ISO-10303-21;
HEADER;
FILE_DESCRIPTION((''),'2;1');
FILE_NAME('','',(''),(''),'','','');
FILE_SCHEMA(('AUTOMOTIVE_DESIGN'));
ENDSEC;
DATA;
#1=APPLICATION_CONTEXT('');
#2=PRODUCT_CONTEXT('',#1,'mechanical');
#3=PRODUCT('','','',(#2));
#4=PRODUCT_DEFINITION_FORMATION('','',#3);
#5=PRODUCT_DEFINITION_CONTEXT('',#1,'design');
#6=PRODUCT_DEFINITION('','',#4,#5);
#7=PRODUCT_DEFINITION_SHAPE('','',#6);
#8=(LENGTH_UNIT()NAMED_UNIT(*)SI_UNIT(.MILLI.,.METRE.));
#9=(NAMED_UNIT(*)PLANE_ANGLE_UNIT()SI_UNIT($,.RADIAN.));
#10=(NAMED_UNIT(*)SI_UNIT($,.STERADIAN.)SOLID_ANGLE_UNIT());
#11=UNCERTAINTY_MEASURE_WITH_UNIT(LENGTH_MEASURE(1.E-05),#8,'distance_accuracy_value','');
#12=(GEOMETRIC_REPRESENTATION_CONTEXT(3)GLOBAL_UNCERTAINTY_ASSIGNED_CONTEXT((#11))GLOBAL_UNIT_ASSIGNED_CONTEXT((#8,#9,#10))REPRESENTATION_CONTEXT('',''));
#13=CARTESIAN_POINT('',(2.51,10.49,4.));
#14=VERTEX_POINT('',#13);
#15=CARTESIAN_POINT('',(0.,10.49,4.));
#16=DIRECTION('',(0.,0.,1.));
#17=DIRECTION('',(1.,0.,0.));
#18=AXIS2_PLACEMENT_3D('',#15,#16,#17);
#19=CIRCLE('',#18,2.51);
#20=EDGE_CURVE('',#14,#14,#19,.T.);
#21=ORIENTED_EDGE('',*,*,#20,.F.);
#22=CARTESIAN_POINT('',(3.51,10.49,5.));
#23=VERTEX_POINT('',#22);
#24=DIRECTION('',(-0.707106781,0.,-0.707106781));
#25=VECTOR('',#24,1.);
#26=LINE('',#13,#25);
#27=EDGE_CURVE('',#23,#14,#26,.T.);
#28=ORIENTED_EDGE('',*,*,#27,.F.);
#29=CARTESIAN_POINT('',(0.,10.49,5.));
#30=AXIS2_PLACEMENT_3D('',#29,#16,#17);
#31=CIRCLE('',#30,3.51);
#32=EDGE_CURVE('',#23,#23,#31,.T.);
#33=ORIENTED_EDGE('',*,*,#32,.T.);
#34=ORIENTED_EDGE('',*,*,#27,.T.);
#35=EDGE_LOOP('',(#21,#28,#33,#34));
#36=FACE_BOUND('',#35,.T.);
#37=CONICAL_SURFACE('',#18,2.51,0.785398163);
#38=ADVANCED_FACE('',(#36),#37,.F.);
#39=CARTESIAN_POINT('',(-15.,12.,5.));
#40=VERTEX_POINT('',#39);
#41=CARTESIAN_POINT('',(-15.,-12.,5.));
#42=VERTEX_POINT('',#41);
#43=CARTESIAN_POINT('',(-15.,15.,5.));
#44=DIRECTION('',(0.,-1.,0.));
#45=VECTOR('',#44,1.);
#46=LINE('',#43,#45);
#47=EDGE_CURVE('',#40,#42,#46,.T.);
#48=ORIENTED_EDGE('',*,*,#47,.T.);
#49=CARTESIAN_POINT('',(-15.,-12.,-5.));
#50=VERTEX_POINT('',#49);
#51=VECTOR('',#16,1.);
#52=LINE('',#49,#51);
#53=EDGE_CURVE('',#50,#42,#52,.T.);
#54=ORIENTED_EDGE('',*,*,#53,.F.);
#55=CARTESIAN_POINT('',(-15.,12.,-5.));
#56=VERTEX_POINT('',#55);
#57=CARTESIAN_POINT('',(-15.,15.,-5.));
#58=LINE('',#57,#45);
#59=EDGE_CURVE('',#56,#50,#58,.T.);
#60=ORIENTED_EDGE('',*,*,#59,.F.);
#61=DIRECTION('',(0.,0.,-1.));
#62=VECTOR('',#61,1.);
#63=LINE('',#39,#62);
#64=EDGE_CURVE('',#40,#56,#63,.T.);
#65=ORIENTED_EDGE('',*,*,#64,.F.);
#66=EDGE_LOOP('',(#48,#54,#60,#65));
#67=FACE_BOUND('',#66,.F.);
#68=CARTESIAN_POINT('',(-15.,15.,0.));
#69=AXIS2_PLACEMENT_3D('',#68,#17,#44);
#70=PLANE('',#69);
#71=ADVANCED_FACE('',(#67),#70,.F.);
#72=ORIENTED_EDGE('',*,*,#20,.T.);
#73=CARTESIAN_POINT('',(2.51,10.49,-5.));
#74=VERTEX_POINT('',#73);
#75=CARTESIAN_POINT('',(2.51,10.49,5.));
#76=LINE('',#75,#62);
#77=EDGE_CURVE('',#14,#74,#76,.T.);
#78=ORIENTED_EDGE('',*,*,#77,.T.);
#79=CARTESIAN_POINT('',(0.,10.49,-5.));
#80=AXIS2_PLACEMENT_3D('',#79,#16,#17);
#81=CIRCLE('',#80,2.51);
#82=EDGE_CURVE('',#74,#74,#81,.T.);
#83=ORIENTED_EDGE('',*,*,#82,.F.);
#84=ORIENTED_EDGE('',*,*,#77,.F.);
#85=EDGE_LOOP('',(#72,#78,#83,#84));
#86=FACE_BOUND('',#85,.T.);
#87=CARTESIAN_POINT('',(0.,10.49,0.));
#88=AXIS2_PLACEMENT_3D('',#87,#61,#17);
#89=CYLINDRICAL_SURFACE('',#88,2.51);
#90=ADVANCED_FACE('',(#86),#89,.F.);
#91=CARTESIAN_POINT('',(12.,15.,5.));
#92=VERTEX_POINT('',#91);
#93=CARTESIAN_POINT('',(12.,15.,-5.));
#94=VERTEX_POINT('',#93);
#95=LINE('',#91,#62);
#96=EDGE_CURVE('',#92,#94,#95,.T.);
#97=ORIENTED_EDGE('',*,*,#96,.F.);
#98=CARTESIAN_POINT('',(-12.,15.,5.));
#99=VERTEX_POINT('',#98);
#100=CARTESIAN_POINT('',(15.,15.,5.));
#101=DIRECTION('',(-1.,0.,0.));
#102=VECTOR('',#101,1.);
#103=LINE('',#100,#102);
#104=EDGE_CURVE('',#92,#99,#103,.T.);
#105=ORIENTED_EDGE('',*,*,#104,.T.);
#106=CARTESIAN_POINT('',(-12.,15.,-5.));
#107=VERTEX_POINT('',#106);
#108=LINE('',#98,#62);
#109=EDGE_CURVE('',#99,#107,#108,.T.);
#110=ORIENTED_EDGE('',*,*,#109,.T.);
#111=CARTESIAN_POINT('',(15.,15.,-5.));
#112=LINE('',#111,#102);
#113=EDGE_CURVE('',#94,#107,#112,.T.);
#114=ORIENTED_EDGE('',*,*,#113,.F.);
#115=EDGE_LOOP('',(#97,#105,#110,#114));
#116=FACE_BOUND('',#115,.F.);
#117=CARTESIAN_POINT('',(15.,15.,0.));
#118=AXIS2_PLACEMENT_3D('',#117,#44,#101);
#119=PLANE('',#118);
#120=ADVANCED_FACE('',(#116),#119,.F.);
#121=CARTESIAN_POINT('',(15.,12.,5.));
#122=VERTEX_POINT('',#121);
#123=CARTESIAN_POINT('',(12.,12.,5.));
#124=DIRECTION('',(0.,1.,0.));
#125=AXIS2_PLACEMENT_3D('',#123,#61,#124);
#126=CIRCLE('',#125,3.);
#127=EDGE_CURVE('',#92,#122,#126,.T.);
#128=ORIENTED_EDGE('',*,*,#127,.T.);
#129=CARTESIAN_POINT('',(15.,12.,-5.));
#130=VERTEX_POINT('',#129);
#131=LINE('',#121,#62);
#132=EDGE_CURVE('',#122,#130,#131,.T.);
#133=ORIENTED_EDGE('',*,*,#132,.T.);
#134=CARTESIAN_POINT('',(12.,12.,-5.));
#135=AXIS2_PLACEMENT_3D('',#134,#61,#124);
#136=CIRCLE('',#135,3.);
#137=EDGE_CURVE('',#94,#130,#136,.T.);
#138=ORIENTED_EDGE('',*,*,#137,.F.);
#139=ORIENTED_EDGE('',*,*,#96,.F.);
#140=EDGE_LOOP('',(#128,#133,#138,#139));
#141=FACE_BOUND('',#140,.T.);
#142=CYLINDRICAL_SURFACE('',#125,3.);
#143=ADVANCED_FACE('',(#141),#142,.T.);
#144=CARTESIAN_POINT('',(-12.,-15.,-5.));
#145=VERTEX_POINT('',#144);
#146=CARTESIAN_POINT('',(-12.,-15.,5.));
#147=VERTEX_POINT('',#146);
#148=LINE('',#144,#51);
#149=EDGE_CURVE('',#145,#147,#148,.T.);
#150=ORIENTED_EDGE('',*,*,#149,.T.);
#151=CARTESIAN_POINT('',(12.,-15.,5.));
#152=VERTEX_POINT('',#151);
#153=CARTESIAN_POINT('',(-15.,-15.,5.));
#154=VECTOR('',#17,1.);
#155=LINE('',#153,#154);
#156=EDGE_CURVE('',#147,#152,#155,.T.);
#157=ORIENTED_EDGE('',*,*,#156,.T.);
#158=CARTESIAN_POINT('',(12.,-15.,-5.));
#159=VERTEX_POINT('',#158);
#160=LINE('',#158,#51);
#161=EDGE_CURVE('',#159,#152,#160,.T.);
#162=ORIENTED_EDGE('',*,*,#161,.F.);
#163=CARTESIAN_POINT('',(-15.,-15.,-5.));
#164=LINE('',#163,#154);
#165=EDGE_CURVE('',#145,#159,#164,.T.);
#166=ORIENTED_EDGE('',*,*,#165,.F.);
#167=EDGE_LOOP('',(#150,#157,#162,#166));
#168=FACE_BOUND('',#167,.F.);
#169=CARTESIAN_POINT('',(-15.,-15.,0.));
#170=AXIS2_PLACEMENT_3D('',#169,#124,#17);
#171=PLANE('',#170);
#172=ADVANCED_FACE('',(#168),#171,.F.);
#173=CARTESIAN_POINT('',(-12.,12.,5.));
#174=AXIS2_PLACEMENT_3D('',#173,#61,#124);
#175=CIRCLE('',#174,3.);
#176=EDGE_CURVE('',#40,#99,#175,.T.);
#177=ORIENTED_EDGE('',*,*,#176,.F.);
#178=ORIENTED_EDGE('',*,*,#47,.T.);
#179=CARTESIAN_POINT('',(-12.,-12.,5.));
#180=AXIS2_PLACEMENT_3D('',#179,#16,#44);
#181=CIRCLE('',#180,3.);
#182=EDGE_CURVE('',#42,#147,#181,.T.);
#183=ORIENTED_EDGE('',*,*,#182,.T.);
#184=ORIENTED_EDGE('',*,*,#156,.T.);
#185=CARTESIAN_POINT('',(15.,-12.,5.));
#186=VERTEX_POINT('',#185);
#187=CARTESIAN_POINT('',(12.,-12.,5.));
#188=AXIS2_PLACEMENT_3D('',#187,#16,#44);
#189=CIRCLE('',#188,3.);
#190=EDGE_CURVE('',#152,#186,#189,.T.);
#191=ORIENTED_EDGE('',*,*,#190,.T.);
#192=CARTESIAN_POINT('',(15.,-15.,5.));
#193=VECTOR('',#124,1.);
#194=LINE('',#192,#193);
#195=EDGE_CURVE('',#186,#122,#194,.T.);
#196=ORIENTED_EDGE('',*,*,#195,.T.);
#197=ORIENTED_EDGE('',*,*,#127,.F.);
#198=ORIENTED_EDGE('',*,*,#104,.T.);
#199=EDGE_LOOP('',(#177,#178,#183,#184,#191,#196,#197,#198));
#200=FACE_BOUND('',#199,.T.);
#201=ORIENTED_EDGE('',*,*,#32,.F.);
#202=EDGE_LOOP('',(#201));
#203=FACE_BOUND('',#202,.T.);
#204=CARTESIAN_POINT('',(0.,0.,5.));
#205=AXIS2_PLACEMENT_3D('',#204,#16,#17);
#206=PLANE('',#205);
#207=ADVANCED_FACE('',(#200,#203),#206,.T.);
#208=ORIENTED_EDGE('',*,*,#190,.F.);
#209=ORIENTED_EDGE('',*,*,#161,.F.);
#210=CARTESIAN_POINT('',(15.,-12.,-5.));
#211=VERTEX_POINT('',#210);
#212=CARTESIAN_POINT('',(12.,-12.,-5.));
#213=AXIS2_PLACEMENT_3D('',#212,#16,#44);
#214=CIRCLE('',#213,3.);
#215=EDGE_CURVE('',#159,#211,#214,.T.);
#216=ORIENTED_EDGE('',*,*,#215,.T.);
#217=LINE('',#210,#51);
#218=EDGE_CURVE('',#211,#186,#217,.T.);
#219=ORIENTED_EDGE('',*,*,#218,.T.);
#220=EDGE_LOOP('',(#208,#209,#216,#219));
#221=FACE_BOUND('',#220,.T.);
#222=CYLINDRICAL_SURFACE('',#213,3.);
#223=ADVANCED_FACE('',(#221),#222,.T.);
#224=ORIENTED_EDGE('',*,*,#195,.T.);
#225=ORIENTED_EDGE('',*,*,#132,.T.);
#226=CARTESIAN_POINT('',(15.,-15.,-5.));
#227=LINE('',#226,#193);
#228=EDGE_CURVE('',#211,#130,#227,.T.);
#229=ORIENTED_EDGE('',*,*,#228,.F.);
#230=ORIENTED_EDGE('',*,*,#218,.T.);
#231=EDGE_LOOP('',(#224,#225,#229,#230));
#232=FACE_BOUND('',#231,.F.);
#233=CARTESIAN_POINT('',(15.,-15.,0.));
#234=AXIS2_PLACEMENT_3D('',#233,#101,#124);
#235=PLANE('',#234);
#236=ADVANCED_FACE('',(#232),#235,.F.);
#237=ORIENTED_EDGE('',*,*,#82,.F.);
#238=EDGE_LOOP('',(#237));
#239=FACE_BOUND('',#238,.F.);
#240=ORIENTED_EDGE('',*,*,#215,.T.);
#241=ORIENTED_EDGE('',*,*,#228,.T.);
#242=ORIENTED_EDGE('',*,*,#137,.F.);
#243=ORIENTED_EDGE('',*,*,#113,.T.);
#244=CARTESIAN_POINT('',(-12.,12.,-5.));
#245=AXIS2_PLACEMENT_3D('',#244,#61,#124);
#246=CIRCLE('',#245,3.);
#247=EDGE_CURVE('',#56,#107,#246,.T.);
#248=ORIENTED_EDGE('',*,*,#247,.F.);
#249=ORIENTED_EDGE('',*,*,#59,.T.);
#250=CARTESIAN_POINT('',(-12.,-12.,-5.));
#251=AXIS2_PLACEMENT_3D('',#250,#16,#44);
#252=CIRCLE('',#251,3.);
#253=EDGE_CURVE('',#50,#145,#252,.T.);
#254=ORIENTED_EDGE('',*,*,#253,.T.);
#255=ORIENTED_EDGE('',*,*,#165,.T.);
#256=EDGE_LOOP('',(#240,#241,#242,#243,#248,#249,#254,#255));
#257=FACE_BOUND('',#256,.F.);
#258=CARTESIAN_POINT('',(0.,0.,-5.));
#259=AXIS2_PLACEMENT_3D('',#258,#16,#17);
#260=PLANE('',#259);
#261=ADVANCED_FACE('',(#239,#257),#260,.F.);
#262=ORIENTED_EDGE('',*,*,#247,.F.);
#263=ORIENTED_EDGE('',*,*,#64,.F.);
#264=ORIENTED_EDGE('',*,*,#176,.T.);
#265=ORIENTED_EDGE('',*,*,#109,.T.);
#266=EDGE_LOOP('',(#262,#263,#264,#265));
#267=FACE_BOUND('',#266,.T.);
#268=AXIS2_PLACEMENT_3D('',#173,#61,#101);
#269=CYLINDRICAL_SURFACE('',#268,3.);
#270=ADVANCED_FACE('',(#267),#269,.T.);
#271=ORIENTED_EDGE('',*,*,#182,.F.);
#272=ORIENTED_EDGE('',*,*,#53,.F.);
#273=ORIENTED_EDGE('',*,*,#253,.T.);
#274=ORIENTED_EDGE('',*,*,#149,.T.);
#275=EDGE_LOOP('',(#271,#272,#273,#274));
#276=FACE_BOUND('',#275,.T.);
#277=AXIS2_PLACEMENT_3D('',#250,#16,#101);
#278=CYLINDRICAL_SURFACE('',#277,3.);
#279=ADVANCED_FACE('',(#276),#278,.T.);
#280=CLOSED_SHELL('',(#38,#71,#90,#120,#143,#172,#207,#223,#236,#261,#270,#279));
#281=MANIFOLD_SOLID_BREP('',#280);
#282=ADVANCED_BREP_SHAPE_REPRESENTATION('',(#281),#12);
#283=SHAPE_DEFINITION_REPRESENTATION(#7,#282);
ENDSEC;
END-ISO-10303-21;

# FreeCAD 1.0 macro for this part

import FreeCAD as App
import Part
import Sketcher
from FreeCAD import Vector


def edges_at(feature, points):
    """Names of the edges that pass closest to the given points."""
    edges = feature.Shape.Edges
    near = lambda p: min(range(len(edges)), key=lambda i: edges[i].distToShape(Part.Vertex(*p))[0])
    return sorted({f"Edge{near(p) + 1}" for p in points})


def add_polygon(sketch, points):
    """Adds a closed chain of lines whose ends are joined by coincident constraints."""
    first, n = sketch.GeometryCount, len(points)
    for a, b in zip(points, points[1:] + points[:1]):
        sketch.addGeometry(Part.LineSegment(App.Vector(*a, 0), App.Vector(*b, 0)), False)
    for i in range(n):
        sketch.addConstraint(Sketcher.Constraint("Coincident", first + i, 2, first + (i + 1) % n, 1))

doc = App.newDocument("Part")
body = doc.addObject("PartDesign::Body", "Body")

sketch1 = body.newObject("Sketcher::SketchObject", "Sketch")
sketch1.AttachmentSupport = (doc.getObject("XY_Plane"), [""])
sketch1.MapMode = "FlatFace"
add_polygon(sketch1, [(-15, 15), (-15, -15), (15, -15), (15, 15)])
sketch1.addGeometry(Part.Circle(Vector(0, 10.5, 0), Vector(0, 0, 1), 2.5), False)
sketch1.addConstraint(Sketcher.Constraint("Vertical", 0))
sketch1.addConstraint(Sketcher.Constraint("Horizontal", 1))
sketch1.addConstraint(Sketcher.Constraint("Vertical", 2))
sketch1.addConstraint(Sketcher.Constraint("Horizontal", 3))
sketch1.addConstraint(Sketcher.Constraint("Symmetric", 0, 2, 2, 2, -1, 1))
sketch1.addConstraint(Sketcher.Constraint("PointOnObject", 4, 3, -2))
sketch1.addConstraint(Sketcher.Constraint("Equal", 3, 0))
sketch1.addConstraint(Sketcher.Constraint("Diameter", 4, 5.02))
sketch1.addConstraint(Sketcher.Constraint("DistanceX", 1, 1, 1, 2, 30.0))
sketch1.addConstraint(Sketcher.Constraint("DistanceY", -1, 1, 4, 3, 10.49))
pad1 = body.newObject("PartDesign::Pad", "Pad")
pad1.Profile = sketch1
pad1.Length = 10
pad1.Midplane = True
doc.recompute()

fillet = body.newObject("PartDesign::Fillet", "Fillet")
fillet.Base = (pad1, edges_at(pad1, [
    (-15, 15, 0),
    (15, 15, 0),
    (15, -15, 0),
    (-15, -15, 0),
]))
fillet.Radius = 3
doc.recompute()

chamfer = body.newObject("PartDesign::Chamfer", "Chamfer")
chamfer.Base = (fillet, edges_at(fillet, [(-2.51, 10.49, 5)]))
chamfer.Size = 1

doc.recompute()
